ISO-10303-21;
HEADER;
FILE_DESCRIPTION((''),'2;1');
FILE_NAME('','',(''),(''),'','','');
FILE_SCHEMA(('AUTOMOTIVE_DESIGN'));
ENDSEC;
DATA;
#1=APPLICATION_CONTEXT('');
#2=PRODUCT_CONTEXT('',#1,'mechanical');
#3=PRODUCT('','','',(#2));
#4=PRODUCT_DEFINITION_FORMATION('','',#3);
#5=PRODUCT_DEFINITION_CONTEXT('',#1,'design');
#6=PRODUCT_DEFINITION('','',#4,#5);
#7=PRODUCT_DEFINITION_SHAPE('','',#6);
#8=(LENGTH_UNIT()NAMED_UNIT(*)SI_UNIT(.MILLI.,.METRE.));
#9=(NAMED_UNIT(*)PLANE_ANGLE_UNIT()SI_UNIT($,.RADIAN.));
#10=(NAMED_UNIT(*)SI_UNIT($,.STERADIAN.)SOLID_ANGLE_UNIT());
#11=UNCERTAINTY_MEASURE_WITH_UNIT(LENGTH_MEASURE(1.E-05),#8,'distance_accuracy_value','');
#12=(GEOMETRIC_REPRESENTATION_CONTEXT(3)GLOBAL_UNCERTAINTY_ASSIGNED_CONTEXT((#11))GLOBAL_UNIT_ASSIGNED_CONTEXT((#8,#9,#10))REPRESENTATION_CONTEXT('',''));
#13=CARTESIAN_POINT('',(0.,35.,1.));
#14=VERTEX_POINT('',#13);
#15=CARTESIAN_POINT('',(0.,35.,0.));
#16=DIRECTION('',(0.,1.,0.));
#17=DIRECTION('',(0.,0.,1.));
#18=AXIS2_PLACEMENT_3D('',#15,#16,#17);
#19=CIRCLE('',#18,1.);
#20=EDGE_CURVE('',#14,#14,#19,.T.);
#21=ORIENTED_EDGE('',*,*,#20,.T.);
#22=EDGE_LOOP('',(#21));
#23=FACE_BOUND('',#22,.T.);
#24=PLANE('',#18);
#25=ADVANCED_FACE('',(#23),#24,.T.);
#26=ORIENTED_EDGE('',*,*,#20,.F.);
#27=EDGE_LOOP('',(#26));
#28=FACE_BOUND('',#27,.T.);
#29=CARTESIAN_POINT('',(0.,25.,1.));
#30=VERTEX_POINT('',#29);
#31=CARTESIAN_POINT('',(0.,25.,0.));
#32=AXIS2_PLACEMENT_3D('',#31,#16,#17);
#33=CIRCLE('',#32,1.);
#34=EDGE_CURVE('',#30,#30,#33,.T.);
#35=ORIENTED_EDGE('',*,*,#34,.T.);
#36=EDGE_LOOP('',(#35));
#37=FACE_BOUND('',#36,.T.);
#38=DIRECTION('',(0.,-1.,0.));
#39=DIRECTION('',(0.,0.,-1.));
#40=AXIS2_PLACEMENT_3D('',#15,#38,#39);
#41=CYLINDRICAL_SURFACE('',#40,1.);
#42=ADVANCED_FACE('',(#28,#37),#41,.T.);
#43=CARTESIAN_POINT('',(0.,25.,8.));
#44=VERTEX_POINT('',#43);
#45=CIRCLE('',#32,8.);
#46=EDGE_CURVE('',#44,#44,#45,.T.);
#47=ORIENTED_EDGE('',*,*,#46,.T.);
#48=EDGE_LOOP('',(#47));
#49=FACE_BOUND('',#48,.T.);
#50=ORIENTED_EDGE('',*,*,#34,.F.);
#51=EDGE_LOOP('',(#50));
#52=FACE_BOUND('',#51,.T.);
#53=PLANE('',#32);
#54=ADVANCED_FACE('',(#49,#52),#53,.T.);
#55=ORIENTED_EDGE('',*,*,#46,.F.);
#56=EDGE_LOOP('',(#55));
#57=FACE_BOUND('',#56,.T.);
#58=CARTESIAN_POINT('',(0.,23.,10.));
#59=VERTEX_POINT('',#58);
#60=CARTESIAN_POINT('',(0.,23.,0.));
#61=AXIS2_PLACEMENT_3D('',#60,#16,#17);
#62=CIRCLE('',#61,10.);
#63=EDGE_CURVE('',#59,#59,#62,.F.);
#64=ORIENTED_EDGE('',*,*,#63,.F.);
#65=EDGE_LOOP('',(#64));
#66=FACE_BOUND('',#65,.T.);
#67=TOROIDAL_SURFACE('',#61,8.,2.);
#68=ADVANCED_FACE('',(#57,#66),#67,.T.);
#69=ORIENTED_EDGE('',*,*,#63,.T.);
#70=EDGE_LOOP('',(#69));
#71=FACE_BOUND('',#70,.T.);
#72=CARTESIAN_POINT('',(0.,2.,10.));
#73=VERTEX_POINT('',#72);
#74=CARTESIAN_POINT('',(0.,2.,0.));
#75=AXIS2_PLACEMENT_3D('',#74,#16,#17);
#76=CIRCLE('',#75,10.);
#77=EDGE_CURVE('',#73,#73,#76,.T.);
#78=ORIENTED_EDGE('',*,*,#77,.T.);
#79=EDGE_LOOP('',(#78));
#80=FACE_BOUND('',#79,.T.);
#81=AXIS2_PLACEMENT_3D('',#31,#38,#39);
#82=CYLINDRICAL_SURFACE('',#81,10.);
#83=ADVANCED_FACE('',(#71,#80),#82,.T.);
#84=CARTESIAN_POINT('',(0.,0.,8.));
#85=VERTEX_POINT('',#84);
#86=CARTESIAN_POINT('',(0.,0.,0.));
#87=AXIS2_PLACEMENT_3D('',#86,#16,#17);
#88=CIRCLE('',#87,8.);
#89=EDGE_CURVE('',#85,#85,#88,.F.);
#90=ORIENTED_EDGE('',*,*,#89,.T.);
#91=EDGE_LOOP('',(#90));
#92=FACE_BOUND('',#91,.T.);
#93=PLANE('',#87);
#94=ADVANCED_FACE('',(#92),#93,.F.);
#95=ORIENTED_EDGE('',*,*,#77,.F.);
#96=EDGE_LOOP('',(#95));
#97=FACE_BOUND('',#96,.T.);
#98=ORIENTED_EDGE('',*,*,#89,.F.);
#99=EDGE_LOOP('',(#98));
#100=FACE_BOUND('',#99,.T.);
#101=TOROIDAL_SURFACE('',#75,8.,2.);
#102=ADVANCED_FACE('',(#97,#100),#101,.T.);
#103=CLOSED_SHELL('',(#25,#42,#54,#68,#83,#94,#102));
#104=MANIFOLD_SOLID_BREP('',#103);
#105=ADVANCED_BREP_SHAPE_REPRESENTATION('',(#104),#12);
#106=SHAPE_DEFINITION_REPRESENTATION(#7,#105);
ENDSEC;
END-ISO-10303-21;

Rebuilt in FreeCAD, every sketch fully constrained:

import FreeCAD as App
import Part
import Sketcher

V = App.Vector


def edges_at(feature, points):
    """Names of the edges that pass closest to the given points."""
    edges = feature.Shape.Edges
    near = lambda p: min(range(len(edges)), key=lambda i: edges[i].distToShape(Part.Vertex(*p))[0])
    return sorted({f"Edge{near(p) + 1}" for p in points})

doc = App.newDocument("Part")
body = doc.addObject("PartDesign::Body", "Body")

# Sketch on XZ plane
sketch1 = body.newObject("Sketcher::SketchObject", "Sketch")
sketch1.AttachmentSupport = (doc.getObject("XZ_Plane"), [""])
sketch1.MapMode = "FlatFace"
sketch1.addGeometry(Part.Circle(V(0, 0, 0), V(0, 0, 1), 10), False)
sketch1.addConstraint([
    Sketcher.Constraint("Coincident", 0, 3, -1, 1),
    Sketcher.Constraint("Diameter", 0, 20.0),
])
pad1 = body.newObject("PartDesign::Pad", "Pad")
pad1.Profile = sketch1
pad1.Length = 25
pad1.Reversed = True

# Sketch on XZ plane
sketch2 = body.newObject("Sketcher::SketchObject", "Sketch001")
sketch2.AttachmentSupport = (doc.getObject("XZ_Plane"), [""])
sketch2.MapMode = "FlatFace"
sketch2.AttachmentOffset = App.Placement(V(0, 0, -25), App.Rotation())
sketch2.addGeometry(Part.Circle(V(0, 0, 0), V(0, 0, 1), 1), False)
sketch2.addConstraint([
    Sketcher.Constraint("Coincident", 0, 3, -1, 1),
    Sketcher.Constraint("Diameter", 0, 2.0),
])
pad2 = body.newObject("PartDesign::Pad", "Pad001")
pad2.Profile = sketch2
pad2.Length = 10
pad2.Reversed = True
doc.recompute()

fillet = body.newObject("PartDesign::Fillet", "Fillet")
fillet.Base = (pad2, edges_at(pad2, [(-10, 0, 0), (-10, 25, 0)]))
fillet.Radius = 2

doc.recompute()
